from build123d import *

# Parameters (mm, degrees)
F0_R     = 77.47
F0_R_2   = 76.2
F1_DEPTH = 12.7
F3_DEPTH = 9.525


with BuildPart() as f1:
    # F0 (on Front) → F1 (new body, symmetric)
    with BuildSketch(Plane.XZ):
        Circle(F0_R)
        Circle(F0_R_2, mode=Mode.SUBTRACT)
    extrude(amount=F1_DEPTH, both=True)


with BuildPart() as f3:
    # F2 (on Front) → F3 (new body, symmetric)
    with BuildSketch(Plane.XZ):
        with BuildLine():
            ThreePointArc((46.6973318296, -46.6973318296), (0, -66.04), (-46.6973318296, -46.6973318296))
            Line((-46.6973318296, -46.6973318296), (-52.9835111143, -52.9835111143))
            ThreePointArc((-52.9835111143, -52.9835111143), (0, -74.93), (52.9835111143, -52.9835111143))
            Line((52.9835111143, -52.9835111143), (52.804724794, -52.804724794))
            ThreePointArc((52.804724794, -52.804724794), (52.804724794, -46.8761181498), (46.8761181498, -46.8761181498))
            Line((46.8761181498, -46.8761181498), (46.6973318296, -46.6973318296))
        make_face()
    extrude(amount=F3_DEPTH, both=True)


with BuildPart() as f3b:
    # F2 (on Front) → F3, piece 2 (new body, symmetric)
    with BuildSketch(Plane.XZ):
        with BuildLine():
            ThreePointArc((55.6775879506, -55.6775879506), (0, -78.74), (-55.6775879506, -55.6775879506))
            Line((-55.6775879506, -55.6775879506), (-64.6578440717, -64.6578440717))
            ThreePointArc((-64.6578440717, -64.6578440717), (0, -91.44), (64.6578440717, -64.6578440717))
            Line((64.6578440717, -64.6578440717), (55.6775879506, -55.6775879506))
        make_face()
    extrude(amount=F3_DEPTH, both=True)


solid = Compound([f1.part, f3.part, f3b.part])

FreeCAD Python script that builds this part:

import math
import FreeCAD as App
import Part
import Sketcher
from FreeCAD import Vector
Q = App.Units.Quantity

doc = App.newDocument("Part")
body = doc.addObject("PartDesign::Body", "Body")

# Sketch on XZ plane
sketch1 = body.newObject("Sketcher::SketchObject", "Sketch")
sketch1.AttachmentSupport = (doc.getObject("XZ_Plane"), [""])
sketch1.MapMode = "FlatFace"
sketch1.addGeometry(Part.Circle(Vector(0, 0, 0), Vector(0, 0, 1), 77.47), False)
sketch1.addGeometry(Part.Circle(Vector(0, 0, 0), Vector(0, 0, 1), 76.2), False)
sketch1.addConstraint(Sketcher.Constraint("Coincident", 0, 3, -1, 1))
sketch1.addConstraint(Sketcher.Constraint("Coincident", 1, 3, -1, 1))
sketch1.addConstraint(Sketcher.Constraint("Diameter", 1, Q("6 in")))
sketch1.addConstraint(Sketcher.Constraint("Diameter", 0, Q("6.1 in")))
pad1 = body.newObject("PartDesign::Pad", "Pad")
pad1.Profile = sketch1
pad1.Length = Q("1 in")
pad1.Midplane = True
body2 = doc.addObject("PartDesign::Body", "Body001")

# Sketch on XZ plane
sketch2 = body2.newObject("Sketcher::SketchObject", "Sketch001")
sketch2.AttachmentSupport = (doc.getObject("XZ_Plane001"), [""])
sketch2.MapMode = "FlatFace"
sketch2.addGeometry(Part.ArcOfCircle(Part.Circle(Vector(0, 0, 0), Vector(0, 0, 1), 66.04), math.radians(-135), math.radians(-45)), False)
sketch2.addGeometry(Part.LineSegment(Vector(-46.697332, -46.697332, 0), Vector(-52.983511, -52.983511, 0)), False)
sketch2.addGeometry(Part.ArcOfCircle(Part.Circle(Vector(0, 0, 0), Vector(0, 0, 1), 74.93), math.radians(-135), math.radians(-45)), False)
sketch2.addGeometry(Part.LineSegment(Vector(52.983511, -52.983511, 0), Vector(52.804725, -52.804725, 0)), False)
sketch2.addGeometry(Part.ArcOfCircle(Part.Circle(Vector(49.840421, -49.840421, 0), Vector(0, 0, 1), 4.192158), math.radians(-45), math.radians(135)), False)
sketch2.addGeometry(Part.LineSegment(Vector(46.876118, -46.876118, 0), Vector(46.697332, -46.697332, 0)), False)
sketch2.addConstraint(Sketcher.Constraint("Coincident", 0, 1, 1, 1))
sketch2.addConstraint(Sketcher.Constraint("Coincident", 1, 2, 2, 1))
sketch2.addConstraint(Sketcher.Constraint("Coincident", 2, 2, 3, 1))
sketch2.addConstraint(Sketcher.Constraint("Coincident", 3, 2, 4, 1))
sketch2.addConstraint(Sketcher.Constraint("Coincident", 4, 2, 5, 1))
sketch2.addConstraint(Sketcher.Constraint("Coincident", 5, 2, 0, 2))
sketch2.addConstraint(Sketcher.Constraint("Coincident", 0, 3, -1, 1))
sketch2.addConstraint(Sketcher.Constraint("Coincident", 2, 3, -1, 1))
sketch2.addConstraint(Sketcher.Constraint("Perpendicular", 1, 3))
sketch2.addConstraint(Sketcher.Constraint("Parallel", 3, 5))
sketch2.addConstraint(Sketcher.Constraint("Horizontal", 1, 2, 2, 2))
sketch2.addConstraint(Sketcher.Constraint("Horizontal", 0, 1, 5, 2))
sketch2.addConstraint(Sketcher.Constraint("Equal", 3, 5))
sketch2.addConstraint(Sketcher.Constraint("Radius", 0, Q("2.6 in")))
sketch2.addConstraint(Sketcher.Constraint("Radius", 2, Q("2.95 in")))
sketch2.addConstraint(Sketcher.Constraint("Angle", 1, Q("-135 deg")))
sketch2.addConstraint(Sketcher.Constraint("Radius", 4, 4.192158))
sketch2.addConstraint(Sketcher.Constraint("DistanceX", -1, 1, 4, 3, 49.840421))
sketch2.addConstraint(Sketcher.Constraint("DistanceX", 0, 1, -1, 1, 46.697332))
pad2 = body2.newObject("PartDesign::Pad", "Pad001")
pad2.Profile = sketch2
pad2.Length = Q("0.75 in")
pad2.Midplane = True
body3 = doc.addObject("PartDesign::Body", "Body002")

# Sketch on XZ plane
sketch3 = body3.newObject("Sketcher::SketchObject", "Sketch002")
sketch3.AttachmentSupport = (doc.getObject("XZ_Plane002"), [""])
sketch3.MapMode = "FlatFace"
sketch3.addGeometry(Part.ArcOfCircle(Part.Circle(Vector(0, 0, 0), Vector(0, 0, 1), 78.74), math.radians(-135), math.radians(-45)), False)
sketch3.addGeometry(Part.LineSegment(Vector(-55.677588, -55.677588, 0), Vector(-64.657844, -64.657844, 0)), False)
sketch3.addGeometry(Part.ArcOfCircle(Part.Circle(Vector(0, 0, 0), Vector(0, 0, 1), 91.44), math.radians(-135), math.radians(-45)), False)
sketch3.addGeometry(Part.LineSegment(Vector(64.657844, -64.657844, 0), Vector(55.677588, -55.677588, 0)), False)
sketch3.addConstraint(Sketcher.Constraint("Coincident", 0, 1, 1, 1))
sketch3.addConstraint(Sketcher.Constraint("Coincident", 1, 2, 2, 1))
sketch3.addConstraint(Sketcher.Constraint("Coincident", 2, 2, 3, 1))
sketch3.addConstraint(Sketcher.Constraint("Coincident", 3, 2, 0, 2))
sketch3.addConstraint(Sketcher.Constraint("Coincident", 0, 3, -1, 1))
sketch3.addConstraint(Sketcher.Constraint("Coincident", 2, 3, -1, 1))
sketch3.addConstraint(Sketcher.Constraint("Perpendicular", 1, 3))
sketch3.addConstraint(Sketcher.Constraint("Horizontal", 1, 2, 2, 2))
sketch3.addConstraint(Sketcher.Constraint("Horizontal", 0, 1, 3, 2))
sketch3.addConstraint(Sketcher.Constraint("Radius", 0, Q("3.1 in")))
sketch3.addConstraint(Sketcher.Constraint("Radius", 2, Q("3.6 in")))
sketch3.addConstraint(Sketcher.Constraint("DistanceX", 1, 2, 2, 2, 129.315688))
pad3 = body3.newObject("PartDesign::Pad", "Pad002")
pad3.Profile = sketch3
pad3.Length = Q("0.75 in")
pad3.Midplane = True

doc.recompute()
